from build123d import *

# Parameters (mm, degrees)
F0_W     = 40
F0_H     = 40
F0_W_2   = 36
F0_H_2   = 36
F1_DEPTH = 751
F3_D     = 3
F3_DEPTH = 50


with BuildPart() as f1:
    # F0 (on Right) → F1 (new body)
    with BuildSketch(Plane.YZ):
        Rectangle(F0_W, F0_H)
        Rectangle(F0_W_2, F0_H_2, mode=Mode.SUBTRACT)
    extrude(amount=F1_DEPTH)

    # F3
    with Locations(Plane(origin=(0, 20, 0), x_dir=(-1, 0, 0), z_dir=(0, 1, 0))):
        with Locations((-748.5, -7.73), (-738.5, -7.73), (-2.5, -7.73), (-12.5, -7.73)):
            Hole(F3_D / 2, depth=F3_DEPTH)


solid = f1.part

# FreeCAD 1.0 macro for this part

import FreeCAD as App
import Part
import Sketcher

V = App.Vector

doc = App.newDocument("Part")
body = doc.addObject("PartDesign::Body", "Body")

# Sketch on YZ plane
sketch1 = doc.addObject("Sketcher::SketchObject", "Sketch")
body.addObject(sketch1)
sketch1.AttachmentSupport = (doc.YZ_Plane, [""])
sketch1.MapMode = "FlatFace"
sketch1.addGeometry(Part.LineSegment(V(-20, 20, 0), V(-20, -20, 0)), False)
sketch1.addGeometry(Part.LineSegment(V(-20, -20, 0), V(20, -20, 0)), False)
sketch1.addGeometry(Part.LineSegment(V(20, -20, 0), V(20, 20, 0)), False)
sketch1.addGeometry(Part.LineSegment(V(20, 20, 0), V(-20, 20, 0)), False)
sketch1.addGeometry(Part.LineSegment(V(18, -18, 0), V(-18, -18, 0)), False)
sketch1.addGeometry(Part.LineSegment(V(-18, -18, 0), V(-18, 18, 0)), False)
sketch1.addGeometry(Part.LineSegment(V(-18, 18, 0), V(18, 18, 0)), False)
sketch1.addGeometry(Part.LineSegment(V(18, 18, 0), V(18, -18, 0)), False)
sketch1.addConstraint(Sketcher.Constraint("Coincident", 0, 2, 1, 1))
sketch1.addConstraint(Sketcher.Constraint("Coincident", 1, 2, 2, 1))
sketch1.addConstraint(Sketcher.Constraint("Coincident", 2, 2, 3, 1))
sketch1.addConstraint(Sketcher.Constraint("Coincident", 3, 2, 0, 1))
sketch1.addConstraint(Sketcher.Constraint("Coincident", 4, 2, 5, 1))
sketch1.addConstraint(Sketcher.Constraint("Coincident", 5, 2, 6, 1))
sketch1.addConstraint(Sketcher.Constraint("Coincident", 6, 2, 7, 1))
sketch1.addConstraint(Sketcher.Constraint("Coincident", 7, 2, 4, 1))
sketch1.addConstraint(Sketcher.Constraint("Vertical", 0))
sketch1.addConstraint(Sketcher.Constraint("Horizontal", 1))
sketch1.addConstraint(Sketcher.Constraint("Vertical", 2))
sketch1.addConstraint(Sketcher.Constraint("Horizontal", 3))
sketch1.addConstraint(Sketcher.Constraint("Horizontal", 4))
sketch1.addConstraint(Sketcher.Constraint("Vertical", 5))
sketch1.addConstraint(Sketcher.Constraint("Horizontal", 6))
sketch1.addConstraint(Sketcher.Constraint("Vertical", 7))
sketch1.addConstraint(Sketcher.Constraint("Symmetric", 0, 2, 2, 2, -1, 1))
sketch1.addConstraint(Sketcher.Constraint("Symmetric", 4, 2, 6, 2, -1, 1))
sketch1.addConstraint(Sketcher.Constraint("Equal", 3, 0))
sketch1.addConstraint(Sketcher.Constraint("Equal", 6, 5))
sketch1.addConstraint(Sketcher.Constraint("DistanceX", 1, 1, 1, 2, 40.0))
sketch1.addConstraint(Sketcher.Constraint("DistanceX", 4, 2, 4, 1, 36.0))
pad1 = doc.addObject("PartDesign::Pad", "Pad")
body.addObject(pad1)
pad1.Profile = sketch1
pad1.Length = 751

# Sketch on XZ plane
sketch2 = doc.addObject("Sketcher::SketchObject", "Sketch001")
body.addObject(sketch2)
sketch2.AttachmentSupport = (doc.XZ_Plane, [""])
sketch2.MapMode = "FlatFace"
sketch2.AttachmentOffset = App.Placement(V(0, 0, -20), App.Rotation())
sketch2.addGeometry(Part.Circle(V(748.5, -7.73, 0), V(0, 0, 1), 1.5), False)
sketch2.addGeometry(Part.Circle(V(738.5, -7.73, 0), V(0, 0, 1), 1.5), False)
sketch2.addGeometry(Part.Circle(V(2.5, -7.73, 0), V(0, 0, 1), 1.5), False)
sketch2.addGeometry(Part.Circle(V(12.5, -7.73, 0), V(0, 0, 1), 1.5), False)
sketch2.addConstraint(Sketcher.Constraint("Equal", 0, 1))
sketch2.addConstraint(Sketcher.Constraint("Equal", 1, 2))
sketch2.addConstraint(Sketcher.Constraint("Equal", 2, 3))
sketch2.addConstraint(Sketcher.Constraint("Horizontal", 0, 3, 1, 3))
sketch2.addConstraint(Sketcher.Constraint("Horizontal", 1, 3, 2, 3))
sketch2.addConstraint(Sketcher.Constraint("Horizontal", 2, 3, 3, 3))
sketch2.addConstraint(Sketcher.Constraint("Diameter", 0, 3.0))
sketch2.addConstraint(Sketcher.Constraint("DistanceX", 1, 3, 0, 3, 10.0))
sketch2.addConstraint(Sketcher.Constraint("DistanceX", 2, 3, 1, 3, 736.0))
sketch2.addConstraint(Sketcher.Constraint("DistanceX", 2, 3, 3, 3, 10.0))
sketch2.addConstraint(Sketcher.Constraint("DistanceX", -1, 1, 0, 3, 748.5))
sketch2.addConstraint(Sketcher.Constraint("DistanceY", 0, 3, -1, 1, 7.73))
doc.recompute()
hole = doc.addObject("PartDesign::Hole", "Hole")
body.addObject(hole)
hole.Profile = sketch2
hole.ThreadType = "None"
hole.Diameter = 3
hole.DepthType = "Dimension"
hole.Depth = 50
hole.DrillPoint = "Flat"
hole.Reversed = True

doc.recompute()
